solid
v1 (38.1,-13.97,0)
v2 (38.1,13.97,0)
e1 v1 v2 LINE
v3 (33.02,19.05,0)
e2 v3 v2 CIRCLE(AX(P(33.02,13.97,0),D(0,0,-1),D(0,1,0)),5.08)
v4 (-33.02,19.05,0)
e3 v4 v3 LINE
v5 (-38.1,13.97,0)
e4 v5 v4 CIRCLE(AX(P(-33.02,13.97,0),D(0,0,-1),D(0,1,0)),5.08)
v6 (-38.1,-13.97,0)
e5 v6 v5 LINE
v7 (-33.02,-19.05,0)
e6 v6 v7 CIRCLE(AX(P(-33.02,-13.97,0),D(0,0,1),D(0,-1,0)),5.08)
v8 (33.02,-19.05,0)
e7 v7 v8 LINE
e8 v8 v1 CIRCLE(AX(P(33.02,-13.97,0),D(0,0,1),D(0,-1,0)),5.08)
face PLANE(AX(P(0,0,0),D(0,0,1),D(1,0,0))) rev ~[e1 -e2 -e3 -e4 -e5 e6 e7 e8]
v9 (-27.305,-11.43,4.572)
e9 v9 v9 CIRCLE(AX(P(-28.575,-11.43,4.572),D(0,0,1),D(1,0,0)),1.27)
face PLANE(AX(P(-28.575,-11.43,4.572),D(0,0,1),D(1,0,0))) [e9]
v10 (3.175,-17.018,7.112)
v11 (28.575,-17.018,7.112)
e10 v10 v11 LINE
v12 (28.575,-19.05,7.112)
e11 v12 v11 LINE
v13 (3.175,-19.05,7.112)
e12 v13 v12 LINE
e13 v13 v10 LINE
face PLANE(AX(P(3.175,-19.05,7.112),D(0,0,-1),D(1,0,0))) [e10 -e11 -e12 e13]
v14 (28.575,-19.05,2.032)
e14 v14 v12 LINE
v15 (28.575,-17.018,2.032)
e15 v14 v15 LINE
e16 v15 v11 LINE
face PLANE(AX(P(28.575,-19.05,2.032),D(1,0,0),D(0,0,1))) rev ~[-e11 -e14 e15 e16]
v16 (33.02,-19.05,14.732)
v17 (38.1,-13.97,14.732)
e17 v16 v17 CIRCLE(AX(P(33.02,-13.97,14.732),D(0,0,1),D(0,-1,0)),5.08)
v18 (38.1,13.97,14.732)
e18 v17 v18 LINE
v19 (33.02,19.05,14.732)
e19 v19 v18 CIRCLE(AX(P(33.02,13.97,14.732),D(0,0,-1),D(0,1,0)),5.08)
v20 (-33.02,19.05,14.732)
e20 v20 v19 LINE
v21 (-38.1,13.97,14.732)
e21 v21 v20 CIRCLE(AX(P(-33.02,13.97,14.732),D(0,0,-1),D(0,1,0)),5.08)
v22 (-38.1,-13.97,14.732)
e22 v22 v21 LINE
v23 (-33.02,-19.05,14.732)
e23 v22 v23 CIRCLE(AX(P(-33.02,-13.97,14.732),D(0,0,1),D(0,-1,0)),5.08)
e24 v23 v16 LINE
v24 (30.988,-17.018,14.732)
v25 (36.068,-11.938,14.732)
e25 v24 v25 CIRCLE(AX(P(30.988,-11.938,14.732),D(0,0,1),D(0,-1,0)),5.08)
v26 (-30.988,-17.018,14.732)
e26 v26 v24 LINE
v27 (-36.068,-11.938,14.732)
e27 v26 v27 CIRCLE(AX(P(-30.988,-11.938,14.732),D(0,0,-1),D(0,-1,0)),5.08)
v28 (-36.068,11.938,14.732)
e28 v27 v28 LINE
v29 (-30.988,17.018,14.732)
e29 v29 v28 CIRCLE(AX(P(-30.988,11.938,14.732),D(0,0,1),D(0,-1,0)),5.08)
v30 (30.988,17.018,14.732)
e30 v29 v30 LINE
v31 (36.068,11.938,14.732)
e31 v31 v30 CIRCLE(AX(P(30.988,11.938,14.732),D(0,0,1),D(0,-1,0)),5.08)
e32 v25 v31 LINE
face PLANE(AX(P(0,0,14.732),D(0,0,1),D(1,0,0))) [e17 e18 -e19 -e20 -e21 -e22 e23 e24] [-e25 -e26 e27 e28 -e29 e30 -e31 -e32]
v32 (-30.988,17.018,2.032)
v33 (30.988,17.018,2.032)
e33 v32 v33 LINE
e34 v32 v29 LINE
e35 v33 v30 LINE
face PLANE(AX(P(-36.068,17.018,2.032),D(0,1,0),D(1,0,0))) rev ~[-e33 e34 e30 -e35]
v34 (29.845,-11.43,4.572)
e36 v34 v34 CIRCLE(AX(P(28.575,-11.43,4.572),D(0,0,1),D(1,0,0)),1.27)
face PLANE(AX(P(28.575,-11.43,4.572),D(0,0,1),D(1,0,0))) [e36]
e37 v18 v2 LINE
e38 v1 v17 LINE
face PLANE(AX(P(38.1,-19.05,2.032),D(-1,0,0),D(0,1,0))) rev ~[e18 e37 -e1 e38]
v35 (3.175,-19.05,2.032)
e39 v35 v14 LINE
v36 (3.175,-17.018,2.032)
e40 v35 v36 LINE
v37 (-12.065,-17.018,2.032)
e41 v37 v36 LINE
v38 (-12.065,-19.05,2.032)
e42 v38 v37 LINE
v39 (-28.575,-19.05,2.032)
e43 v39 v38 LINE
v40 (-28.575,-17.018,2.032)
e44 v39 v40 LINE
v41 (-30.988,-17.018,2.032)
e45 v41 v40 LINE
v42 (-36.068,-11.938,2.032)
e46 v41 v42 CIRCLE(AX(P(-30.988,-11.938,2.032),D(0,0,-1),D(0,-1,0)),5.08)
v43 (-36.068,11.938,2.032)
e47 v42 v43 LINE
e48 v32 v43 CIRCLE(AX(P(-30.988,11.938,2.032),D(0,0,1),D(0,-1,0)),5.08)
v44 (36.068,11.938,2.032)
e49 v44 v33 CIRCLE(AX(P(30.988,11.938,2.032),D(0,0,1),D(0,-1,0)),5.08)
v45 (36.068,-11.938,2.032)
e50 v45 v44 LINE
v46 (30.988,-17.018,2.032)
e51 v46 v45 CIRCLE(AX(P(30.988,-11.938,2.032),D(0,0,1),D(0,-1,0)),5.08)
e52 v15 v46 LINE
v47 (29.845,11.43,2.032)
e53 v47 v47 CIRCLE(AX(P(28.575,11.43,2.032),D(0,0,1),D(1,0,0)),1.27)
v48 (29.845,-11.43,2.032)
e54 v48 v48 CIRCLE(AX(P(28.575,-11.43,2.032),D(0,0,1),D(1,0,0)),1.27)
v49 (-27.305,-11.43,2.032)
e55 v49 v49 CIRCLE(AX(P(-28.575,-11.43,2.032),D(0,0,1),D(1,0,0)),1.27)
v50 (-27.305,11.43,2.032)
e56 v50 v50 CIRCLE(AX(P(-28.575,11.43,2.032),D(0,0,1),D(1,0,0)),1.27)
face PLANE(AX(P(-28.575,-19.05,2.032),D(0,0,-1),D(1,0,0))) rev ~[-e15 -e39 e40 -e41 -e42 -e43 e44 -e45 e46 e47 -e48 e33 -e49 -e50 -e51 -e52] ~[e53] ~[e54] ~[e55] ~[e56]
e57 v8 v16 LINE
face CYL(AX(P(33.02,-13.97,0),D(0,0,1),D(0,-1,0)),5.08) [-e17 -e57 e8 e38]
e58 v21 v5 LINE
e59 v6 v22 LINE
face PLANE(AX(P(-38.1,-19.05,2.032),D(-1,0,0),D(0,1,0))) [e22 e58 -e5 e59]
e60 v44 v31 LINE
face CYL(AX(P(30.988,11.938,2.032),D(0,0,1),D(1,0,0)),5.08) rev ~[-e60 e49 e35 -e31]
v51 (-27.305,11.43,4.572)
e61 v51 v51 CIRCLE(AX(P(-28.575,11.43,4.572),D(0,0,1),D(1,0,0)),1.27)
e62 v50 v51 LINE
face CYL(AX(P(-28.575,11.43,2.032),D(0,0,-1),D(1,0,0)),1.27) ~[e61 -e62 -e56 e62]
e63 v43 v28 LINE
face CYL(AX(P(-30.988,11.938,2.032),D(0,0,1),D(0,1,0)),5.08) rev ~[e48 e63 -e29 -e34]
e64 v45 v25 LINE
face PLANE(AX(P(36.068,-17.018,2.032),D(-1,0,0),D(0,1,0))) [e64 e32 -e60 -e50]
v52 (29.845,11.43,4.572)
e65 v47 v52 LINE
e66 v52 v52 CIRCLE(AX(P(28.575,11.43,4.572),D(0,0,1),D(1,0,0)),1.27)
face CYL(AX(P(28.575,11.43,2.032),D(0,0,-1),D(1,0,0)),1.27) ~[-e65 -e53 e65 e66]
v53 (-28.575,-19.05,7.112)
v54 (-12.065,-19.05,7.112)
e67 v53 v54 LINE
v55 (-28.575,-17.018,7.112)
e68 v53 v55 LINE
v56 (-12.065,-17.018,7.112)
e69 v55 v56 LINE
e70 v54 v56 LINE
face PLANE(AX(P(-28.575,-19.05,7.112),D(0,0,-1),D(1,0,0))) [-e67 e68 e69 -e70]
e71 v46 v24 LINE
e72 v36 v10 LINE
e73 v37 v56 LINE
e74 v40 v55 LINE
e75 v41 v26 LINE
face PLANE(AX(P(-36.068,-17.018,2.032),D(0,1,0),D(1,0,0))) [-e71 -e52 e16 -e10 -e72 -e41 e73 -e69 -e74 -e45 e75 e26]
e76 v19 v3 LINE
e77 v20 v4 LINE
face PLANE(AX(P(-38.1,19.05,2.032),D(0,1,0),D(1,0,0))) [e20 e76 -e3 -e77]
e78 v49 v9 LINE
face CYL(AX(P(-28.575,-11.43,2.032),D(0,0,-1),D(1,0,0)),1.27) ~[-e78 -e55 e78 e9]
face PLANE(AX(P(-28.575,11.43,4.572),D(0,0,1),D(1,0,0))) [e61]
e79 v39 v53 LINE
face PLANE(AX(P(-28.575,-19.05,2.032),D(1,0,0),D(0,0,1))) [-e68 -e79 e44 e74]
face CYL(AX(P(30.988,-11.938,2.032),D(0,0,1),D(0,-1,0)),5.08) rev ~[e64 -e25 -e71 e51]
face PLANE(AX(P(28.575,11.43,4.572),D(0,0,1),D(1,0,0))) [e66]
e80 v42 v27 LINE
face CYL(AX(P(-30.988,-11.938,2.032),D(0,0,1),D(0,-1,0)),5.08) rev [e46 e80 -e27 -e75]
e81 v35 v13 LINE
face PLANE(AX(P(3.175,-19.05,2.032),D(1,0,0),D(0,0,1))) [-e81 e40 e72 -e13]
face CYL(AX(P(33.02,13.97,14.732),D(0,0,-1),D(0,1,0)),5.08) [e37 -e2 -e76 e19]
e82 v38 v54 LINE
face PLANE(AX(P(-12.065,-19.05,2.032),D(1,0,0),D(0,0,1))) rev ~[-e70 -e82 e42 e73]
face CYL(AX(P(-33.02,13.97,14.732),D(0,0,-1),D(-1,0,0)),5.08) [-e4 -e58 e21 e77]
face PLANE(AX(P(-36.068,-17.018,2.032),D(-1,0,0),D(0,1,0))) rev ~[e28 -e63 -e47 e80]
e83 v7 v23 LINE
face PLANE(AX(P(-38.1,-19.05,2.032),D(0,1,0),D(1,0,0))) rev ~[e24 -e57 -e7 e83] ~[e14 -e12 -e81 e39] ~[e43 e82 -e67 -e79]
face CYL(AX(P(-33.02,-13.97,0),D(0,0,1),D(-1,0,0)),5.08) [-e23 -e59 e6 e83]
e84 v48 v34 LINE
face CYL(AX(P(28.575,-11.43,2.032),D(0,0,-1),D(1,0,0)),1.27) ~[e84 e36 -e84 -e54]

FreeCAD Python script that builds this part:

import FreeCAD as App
import Part
import Sketcher
Q = App.Units.Quantity


def edges_at(feature, points):
    """Names of the edges that pass closest to the given points."""
    edges = feature.Shape.Edges
    near = lambda p: min(range(len(edges)), key=lambda i: edges[i].distToShape(Part.Vertex(*p))[0])
    return sorted({f"Edge{near(p) + 1}" for p in points})


def add_polygon(sketch, points):
    """Adds a closed chain of lines whose ends are joined by coincident constraints."""
    first, n = sketch.GeometryCount, len(points)
    for a, b in zip(points, points[1:] + points[:1]):
        sketch.addGeometry(Part.LineSegment(App.Vector(*a, 0), App.Vector(*b, 0)), False)
    for i in range(n):
        sketch.addConstraint(Sketcher.Constraint("Coincident", first + i, 2, first + (i + 1) % n, 1))

doc = App.newDocument("Part")
body = doc.addObject("PartDesign::Body", "Body")

# Sketch on XY plane
sketch1 = body.newObject("Sketcher::SketchObject", "Sketch")
sketch1.AttachmentSupport = (doc.getObject("XY_Plane"), [""])
sketch1.MapMode = "FlatFace"
add_polygon(sketch1, [(-38.1, 19.05), (-38.1, -19.05), (38.1, -19.05), (38.1, 19.05)])  # lines 0-3
sketch1.addConstraint(Sketcher.Constraint("Vertical", 0))
sketch1.addConstraint(Sketcher.Constraint("Horizontal", 1))
sketch1.addConstraint(Sketcher.Constraint("Vertical", 2))
sketch1.addConstraint(Sketcher.Constraint("Horizontal", 3))
sketch1.addConstraint(Sketcher.Constraint("Symmetric", 0, 2, 2, 2, -1, 1))
sketch1.addConstraint(Sketcher.Constraint("DistanceX", 1, 1, 1, 2, Q("3 in")))
sketch1.addConstraint(Sketcher.Constraint("DistanceY", 0, 2, 0, 1, Q("1.5 in")))
pad1 = body.newObject("PartDesign::Pad", "Pad")
pad1.Profile = sketch1
pad1.Length = Q("0.08 in")

# Sketch on XY plane
sketch2 = body.newObject("Sketcher::SketchObject", "Sketch001")
sketch2.AttachmentSupport = (doc.getObject("XY_Plane"), [""])
sketch2.MapMode = "FlatFace"
sketch2.AttachmentOffset = App.Placement(App.Vector(0, 0, 0.08 * 25.4), App.Rotation())
add_polygon(sketch2, [(-38.1, 19.05), (-38.1, -19.05), (38.1, -19.05), (38.1, 19.05)])  # lines 0-3
add_polygon(sketch2, [(36.068, -17.018), (-36.068, -17.018), (-36.068, 17.018), (36.068, 17.018)])  # lines 4-7
sketch2.addConstraint(Sketcher.Constraint("Vertical", 0))
sketch2.addConstraint(Sketcher.Constraint("Horizontal", 1))
sketch2.addConstraint(Sketcher.Constraint("Vertical", 2))
sketch2.addConstraint(Sketcher.Constraint("Horizontal", 3))
sketch2.addConstraint(Sketcher.Constraint("Horizontal", 4))
sketch2.addConstraint(Sketcher.Constraint("Vertical", 5))
sketch2.addConstraint(Sketcher.Constraint("Horizontal", 6))
sketch2.addConstraint(Sketcher.Constraint("Vertical", 7))
sketch2.addConstraint(Sketcher.Constraint("Symmetric", 0, 2, 2, 2, -1, 1))
sketch2.addConstraint(Sketcher.Constraint("Symmetric", 4, 2, 6, 2, -1, 1))
sketch2.addConstraint(Sketcher.Constraint("DistanceX", 1, 1, 1, 2, Q("3 in")))
sketch2.addConstraint(Sketcher.Constraint("DistanceY", 0, 2, 0, 1, Q("1.5 in")))
sketch2.addConstraint(Sketcher.Constraint("DistanceX", 4, 2, 4, 1, Q("2.84 in")))
sketch2.addConstraint(Sketcher.Constraint("DistanceY", 5, 1, 5, 2, Q("1.34 in")))
pad2 = body.newObject("PartDesign::Pad", "Pad001")
pad2.Profile = sketch2
pad2.Length = Q("0.5 in")

# Sketch on XY plane
sketch3 = body.newObject("Sketcher::SketchObject", "Sketch002")
sketch3.AttachmentSupport = (doc.getObject("XY_Plane"), [""])
sketch3.MapMode = "FlatFace"
sketch3.AttachmentOffset = App.Placement(App.Vector(0, 0, 0.08 * 25.4), App.Rotation())
sketch3.addGeometry(Part.Circle(App.Vector(-28.575, 11.43, 0), App.Vector(0, 0, 1), 1.27), False)
sketch3.addGeometry(Part.Circle(App.Vector(-28.575, -11.43, 0), App.Vector(0, 0, 1), 1.27), False)
sketch3.addGeometry(Part.Circle(App.Vector(28.575, -11.43, 0), App.Vector(0, 0, 1), 1.27), False)
sketch3.addGeometry(Part.Circle(App.Vector(28.575, 11.43, 0), App.Vector(0, 0, 1), 1.27), False)
sketch3.addConstraint(Sketcher.Constraint("Equal", 0, 1))
sketch3.addConstraint(Sketcher.Constraint("Equal", 1, 2))
sketch3.addConstraint(Sketcher.Constraint("Equal", 2, 3))
sketch3.addConstraint(Sketcher.Constraint("Symmetric", 0, 3, 2, 3, -1, 1))
sketch3.addConstraint(Sketcher.Constraint("Symmetric", 1, 3, 3, 3, -1, 1))
sketch3.addConstraint(Sketcher.Constraint("Symmetric", 1, 3, 2, 3, -2))
sketch3.addConstraint(Sketcher.Constraint("Diameter", 0, Q("0.1 in")))
sketch3.addConstraint(Sketcher.Constraint("DistanceY", 1, 3, 0, 3, Q("0.9 in")))
sketch3.addConstraint(Sketcher.Constraint("DistanceX", 1, 3, 2, 3, Q("2.25 in")))
pad3 = body.newObject("PartDesign::Pad", "Pad002")
pad3.Profile = sketch3
pad3.Length = Q("0.1 in")

# Sketch on XZ plane
sketch4 = body.newObject("Sketcher::SketchObject", "Sketch003")
sketch4.AttachmentSupport = (doc.getObject("XZ_Plane"), [""])
sketch4.MapMode = "FlatFace"
sketch4.AttachmentOffset = App.Placement(App.Vector(0, 0, 0.75 * 25.4), App.Rotation())
add_polygon(sketch4, [(-28.575, 7.112), (-28.575, 2.032), (-12.065, 2.032), (-12.065, 7.112)])  # lines 0-3
add_polygon(sketch4, [(3.175, 7.112), (3.175, 2.032), (28.575, 2.032), (28.575, 7.112)])  # lines 4-7
sketch4.addConstraint(Sketcher.Constraint("Vertical", 0))
sketch4.addConstraint(Sketcher.Constraint("Horizontal", 1))
sketch4.addConstraint(Sketcher.Constraint("Vertical", 2))
sketch4.addConstraint(Sketcher.Constraint("Horizontal", 3))
sketch4.addConstraint(Sketcher.Constraint("Vertical", 4))
sketch4.addConstraint(Sketcher.Constraint("Horizontal", 5))
sketch4.addConstraint(Sketcher.Constraint("Vertical", 6))
sketch4.addConstraint(Sketcher.Constraint("Horizontal", 7))
sketch4.addConstraint(Sketcher.Constraint("Symmetric", 0, 2, 5, 2, -2))
sketch4.addConstraint(Sketcher.Constraint("Horizontal", 3, 2, 6, 2))
sketch4.addConstraint(Sketcher.Constraint("DistanceX", 5, 1, 5, 2, Q("1 in")))
sketch4.addConstraint(Sketcher.Constraint("DistanceY", 0, 2, 0, 1, Q("0.2 in")))
sketch4.addConstraint(Sketcher.Constraint("DistanceX", 1, 1, 1, 2, Q("0.65 in")))
sketch4.addConstraint(Sketcher.Constraint("DistanceX", 1, 2, 4, 2, Q("0.6 in")))
sketch4.addConstraint(Sketcher.Constraint("DistanceY", -1, 1, 0, 2, Q("0.08 in")))
pocket1 = body.newObject("PartDesign::Pocket", "Pocket")
pocket1.Profile = sketch4
pocket1.Length = Q("0.08 in")
doc.recompute()

fillet = body.newObject("PartDesign::Fillet", "Fillet")
fillet.Base = (pocket1, edges_at(pocket1, [
    (-36.068, 17.018, 8.382),
    (-36.068, -17.018, 8.382),
    (36.068, 17.018, 8.382),
    (36.068, -17.018, 8.382),
]))
fillet.Radius = Q("0.2 in")
doc.recompute()

fillet2 = body.newObject("PartDesign::Fillet", "Fillet001")
fillet2.Base = (fillet, edges_at(fillet, [
    (-38.1, -19.05, 7.366),
    (38.1, -19.05, 7.366),
    (38.1, 19.05, 7.366),
    (-38.1, 19.05, 7.366),
]))
fillet2.Radius = Q("0.2 in")

doc.recompute()
